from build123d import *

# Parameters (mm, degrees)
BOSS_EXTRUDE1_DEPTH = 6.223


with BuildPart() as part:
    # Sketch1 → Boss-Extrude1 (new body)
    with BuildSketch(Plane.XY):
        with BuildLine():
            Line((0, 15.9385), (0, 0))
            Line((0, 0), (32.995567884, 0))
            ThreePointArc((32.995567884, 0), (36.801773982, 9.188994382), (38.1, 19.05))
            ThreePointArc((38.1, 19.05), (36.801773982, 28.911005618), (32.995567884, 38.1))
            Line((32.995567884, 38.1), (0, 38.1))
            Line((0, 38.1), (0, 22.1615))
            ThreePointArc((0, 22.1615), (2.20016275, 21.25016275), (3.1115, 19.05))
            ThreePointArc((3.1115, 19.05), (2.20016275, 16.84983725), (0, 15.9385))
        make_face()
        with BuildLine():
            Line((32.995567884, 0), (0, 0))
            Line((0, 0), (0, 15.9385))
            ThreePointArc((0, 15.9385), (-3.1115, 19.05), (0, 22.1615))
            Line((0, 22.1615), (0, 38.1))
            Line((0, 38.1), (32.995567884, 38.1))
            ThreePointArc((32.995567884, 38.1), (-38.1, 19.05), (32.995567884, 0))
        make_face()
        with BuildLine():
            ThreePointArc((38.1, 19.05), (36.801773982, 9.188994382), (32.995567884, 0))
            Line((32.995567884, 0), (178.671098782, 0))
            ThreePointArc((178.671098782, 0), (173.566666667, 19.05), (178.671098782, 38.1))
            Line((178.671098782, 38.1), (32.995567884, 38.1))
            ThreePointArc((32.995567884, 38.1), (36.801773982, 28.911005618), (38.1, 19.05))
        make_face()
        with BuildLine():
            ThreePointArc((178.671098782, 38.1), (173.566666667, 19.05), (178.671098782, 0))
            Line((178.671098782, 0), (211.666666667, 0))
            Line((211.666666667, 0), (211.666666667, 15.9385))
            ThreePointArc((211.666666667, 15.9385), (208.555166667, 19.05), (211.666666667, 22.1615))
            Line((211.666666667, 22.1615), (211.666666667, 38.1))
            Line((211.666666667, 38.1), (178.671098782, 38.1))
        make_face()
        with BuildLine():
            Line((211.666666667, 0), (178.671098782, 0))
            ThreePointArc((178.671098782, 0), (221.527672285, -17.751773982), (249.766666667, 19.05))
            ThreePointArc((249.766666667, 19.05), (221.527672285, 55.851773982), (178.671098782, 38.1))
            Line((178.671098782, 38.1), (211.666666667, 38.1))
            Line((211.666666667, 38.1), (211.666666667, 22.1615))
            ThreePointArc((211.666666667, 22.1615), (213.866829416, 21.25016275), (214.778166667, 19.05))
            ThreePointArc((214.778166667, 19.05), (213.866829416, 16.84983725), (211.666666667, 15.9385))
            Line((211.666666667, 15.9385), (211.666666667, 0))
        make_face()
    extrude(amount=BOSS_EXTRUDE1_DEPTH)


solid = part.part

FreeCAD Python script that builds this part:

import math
import FreeCAD as App
import Part
import Sketcher

V = App.Vector
Q = App.Units.Quantity

doc = App.newDocument("Part")
body = doc.addObject("PartDesign::Body", "Body")

sketch1 = body.newObject("Sketcher::SketchObject", "Sketch")
sketch1.AttachmentSupport = (doc.getObject("XY_Plane"), [""])
sketch1.MapMode = "FlatFace"
sketch1.addGeometry([
    Part.LineSegment(V(33, 0, 0), V(178.7, 0, 0)),
    Part.ArcOfCircle(Part.Circle(V(211.7, 19.1, 0), V(0, 0, 1), 38.1), math.radians(-150), math.radians(150)),
    Part.LineSegment(V(178.7, 38.1, 0), V(33, 38.1, 0)),
    Part.ArcOfCircle(Part.Circle(V(0, 19.1, 0), V(0, 0, 1), 38.1), math.radians(30), math.radians(330)),
    Part.ArcOfCircle(Part.Circle(V(211.7, 19.1, 0), V(0, 0, 1), 3.1), math.radians(90), math.radians(270)),
    Part.ArcOfCircle(Part.Circle(V(211.7, 19, 0), V(0, 0, 1), 3.1), math.radians(0), math.radians(90)),
    Part.ArcOfCircle(Part.Circle(V(211.7, 19.1, 0), V(0, 0, 1), 3.1), math.radians(-90), math.radians(0)),
    Part.ArcOfCircle(Part.Circle(V(0, 19.1, 0), V(0, 0, 1), 3.1), math.radians(0), math.radians(90)),
    Part.ArcOfCircle(Part.Circle(V(0, 19, 0), V(0, 0, 1), 3.1), math.radians(-90), math.radians(0)),
    Part.ArcOfCircle(Part.Circle(V(0, 19.1, 0), V(0, 0, 1), 3.1), math.radians(90), math.radians(270)),
], False)
sketch1.addConstraint([
    Sketcher.Constraint("Coincident", 0, 2, 1, 1),
    Sketcher.Constraint("Coincident", 1, 2, 2, 1),
    Sketcher.Constraint("Coincident", 2, 2, 3, 1),
    Sketcher.Constraint("Coincident", 3, 2, 0, 1),
    Sketcher.Constraint("Tangent", 4, 1, 5, 2),
    Sketcher.Constraint("Tangent", 5, 1, 6, 2),
    Sketcher.Constraint("Tangent", 6, 1, 4, 2),
    Sketcher.Constraint("Tangent", 7, 1, 8, 2),
    Sketcher.Constraint("Tangent", 8, 1, 9, 2),
    Sketcher.Constraint("Tangent", 9, 1, 7, 2),
    Sketcher.Constraint("Horizontal", 0),
    Sketcher.Constraint("Horizontal", 2),
    Sketcher.Constraint("Coincident", 4, 3, 1, 3),
    Sketcher.Constraint("Coincident", 7, 3, 3, 3),
    Sketcher.Constraint("Equal", 1, 3),
    Sketcher.Constraint("Equal", 6, 7),
    Sketcher.Constraint("PointOnObject", 3, 3, -2),
    Sketcher.Constraint("PointOnObject", 0, 2, -1),
    Sketcher.Constraint("PointOnObject", 8, 1, -2),
    Sketcher.Constraint("PointOnObject", 9, 1, -2),
    Sketcher.Constraint("Horizontal", 1, 3, 3, 3),
    Sketcher.Constraint("Horizontal", 9, 3, 5, 1),
    Sketcher.Constraint("Horizontal", 5, 1, 7, 1),
    Sketcher.Constraint("Vertical", 0, 2, 1, 2),
    Sketcher.Constraint("Vertical", 6, 3, 4, 1),
    Sketcher.Constraint("Vertical", 4, 1, 6, 1),
    Sketcher.Constraint("Radius", 1, Q("1.5 in")),
    Sketcher.Constraint("DistanceY", -1, 1, 1, 2, Q("1.5 in")),
    Sketcher.Constraint("Radius", 4, Q("0.1225 in")),
    Sketcher.Constraint("DistanceX", 0, 1, 0, 2, 145.675531),
])
pad1 = body.newObject("PartDesign::Pad", "Pad")
pad1.Profile = sketch1
pad1.Length = Q("0.245 in")

doc.recompute()
